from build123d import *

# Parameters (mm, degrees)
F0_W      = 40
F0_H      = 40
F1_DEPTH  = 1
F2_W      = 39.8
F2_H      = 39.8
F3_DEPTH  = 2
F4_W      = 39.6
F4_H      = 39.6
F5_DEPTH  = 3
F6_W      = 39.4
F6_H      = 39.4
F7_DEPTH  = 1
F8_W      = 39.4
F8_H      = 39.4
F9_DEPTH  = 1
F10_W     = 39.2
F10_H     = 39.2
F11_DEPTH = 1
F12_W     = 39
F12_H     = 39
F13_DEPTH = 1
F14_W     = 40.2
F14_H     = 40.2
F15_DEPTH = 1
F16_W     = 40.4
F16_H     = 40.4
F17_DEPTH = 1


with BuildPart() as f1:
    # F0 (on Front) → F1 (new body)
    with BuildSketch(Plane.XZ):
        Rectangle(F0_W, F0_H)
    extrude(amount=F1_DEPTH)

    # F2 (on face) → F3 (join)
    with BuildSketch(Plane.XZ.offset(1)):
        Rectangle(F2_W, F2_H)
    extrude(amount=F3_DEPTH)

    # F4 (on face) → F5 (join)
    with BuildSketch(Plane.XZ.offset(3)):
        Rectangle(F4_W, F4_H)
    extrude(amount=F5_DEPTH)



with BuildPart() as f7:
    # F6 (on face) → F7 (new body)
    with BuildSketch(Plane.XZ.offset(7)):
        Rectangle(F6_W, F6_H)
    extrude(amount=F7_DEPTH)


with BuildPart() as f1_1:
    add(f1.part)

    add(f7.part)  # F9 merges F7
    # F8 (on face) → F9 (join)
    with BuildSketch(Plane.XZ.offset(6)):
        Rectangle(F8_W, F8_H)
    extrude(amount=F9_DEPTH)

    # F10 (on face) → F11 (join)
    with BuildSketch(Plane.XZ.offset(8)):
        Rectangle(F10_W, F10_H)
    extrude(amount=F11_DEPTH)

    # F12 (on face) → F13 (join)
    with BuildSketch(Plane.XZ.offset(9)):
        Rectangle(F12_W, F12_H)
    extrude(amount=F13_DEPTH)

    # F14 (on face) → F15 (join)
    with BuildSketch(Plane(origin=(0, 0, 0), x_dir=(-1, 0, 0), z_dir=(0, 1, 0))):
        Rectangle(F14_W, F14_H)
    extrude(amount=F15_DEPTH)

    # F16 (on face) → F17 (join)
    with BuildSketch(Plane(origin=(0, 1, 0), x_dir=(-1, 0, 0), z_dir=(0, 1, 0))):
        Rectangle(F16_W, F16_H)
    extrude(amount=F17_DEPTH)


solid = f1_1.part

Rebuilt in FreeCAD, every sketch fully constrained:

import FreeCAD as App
import Part
import Sketcher


def add_polygon(sketch, points):
    """Adds a closed chain of lines whose ends are joined by coincident constraints."""
    first, n = sketch.GeometryCount, len(points)
    for a, b in zip(points, points[1:] + points[:1]):
        sketch.addGeometry(Part.LineSegment(App.Vector(*a, 0), App.Vector(*b, 0)), False)
    for i in range(n):
        sketch.addConstraint(Sketcher.Constraint("Coincident", first + i, 2, first + (i + 1) % n, 1))

doc = App.newDocument("Part")
body = doc.addObject("PartDesign::Body", "Body")

sketch1 = doc.addObject("Sketcher::SketchObject", "Sketch")
body.addObject(sketch1)
sketch1.AttachmentSupport = (doc.XZ_Plane, [""])
sketch1.MapMode = "FlatFace"
add_polygon(sketch1, [(-20, 20), (-20, -20), (20, -20), (20, 20)])
sketch1.addConstraint(Sketcher.Constraint("Vertical", 0))
sketch1.addConstraint(Sketcher.Constraint("Horizontal", 1))
sketch1.addConstraint(Sketcher.Constraint("Vertical", 2))
sketch1.addConstraint(Sketcher.Constraint("Horizontal", 3))
sketch1.addConstraint(Sketcher.Constraint("Symmetric", 0, 2, 2, 2, -1, 1))
sketch1.addConstraint(Sketcher.Constraint("Equal", 3, 0))
sketch1.addConstraint(Sketcher.Constraint("DistanceX", 1, 1, 1, 2, 40.0))
pad1 = doc.addObject("PartDesign::Pad", "Pad")
body.addObject(pad1)
pad1.Profile = sketch1
pad1.Length = 1

sketch2 = doc.addObject("Sketcher::SketchObject", "Sketch001")
body.addObject(sketch2)
sketch2.AttachmentSupport = (doc.XZ_Plane, [""])
sketch2.MapMode = "FlatFace"
sketch2.AttachmentOffset = App.Placement(App.Vector(0, 0, 1), App.Rotation())
add_polygon(sketch2, [(-20, 20), (-20, -20), (20, -20), (20, 20)])
sketch2.addConstraint(Sketcher.Constraint("Vertical", 0))
sketch2.addConstraint(Sketcher.Constraint("Horizontal", 1))
sketch2.addConstraint(Sketcher.Constraint("Vertical", 2))
sketch2.addConstraint(Sketcher.Constraint("Horizontal", 3))
sketch2.addConstraint(Sketcher.Constraint("Symmetric", 0, 2, 2, 2, -1, 1))
sketch2.addConstraint(Sketcher.Constraint("Equal", 3, 0))
sketch2.addConstraint(Sketcher.Constraint("DistanceX", 1, 1, 1, 2, 39.8))
pad2 = doc.addObject("PartDesign::Pad", "Pad001")
body.addObject(pad2)
pad2.Profile = sketch2
pad2.Length = 2

sketch3 = doc.addObject("Sketcher::SketchObject", "Sketch002")
body.addObject(sketch3)
sketch3.AttachmentSupport = (doc.XZ_Plane, [""])
sketch3.MapMode = "FlatFace"
sketch3.AttachmentOffset = App.Placement(App.Vector(0, 0, 3), App.Rotation())
add_polygon(sketch3, [(-20, 20), (-20, -20), (20, -20), (20, 20)])
sketch3.addConstraint(Sketcher.Constraint("Vertical", 0))
sketch3.addConstraint(Sketcher.Constraint("Horizontal", 1))
sketch3.addConstraint(Sketcher.Constraint("Vertical", 2))
sketch3.addConstraint(Sketcher.Constraint("Horizontal", 3))
sketch3.addConstraint(Sketcher.Constraint("Symmetric", 0, 2, 2, 2, -1, 1))
sketch3.addConstraint(Sketcher.Constraint("Equal", 3, 0))
sketch3.addConstraint(Sketcher.Constraint("DistanceX", 1, 1, 1, 2, 39.6))
pad3 = doc.addObject("PartDesign::Pad", "Pad002")
body.addObject(pad3)
pad3.Profile = sketch3
pad3.Length = 3
body2 = doc.addObject("PartDesign::Body", "Body001")

sketch4 = doc.addObject("Sketcher::SketchObject", "Sketch003")
body2.addObject(sketch4)
sketch4.AttachmentSupport = (doc.getObject("XZ_Plane001"), [""])
sketch4.MapMode = "FlatFace"
sketch4.AttachmentOffset = App.Placement(App.Vector(0, 0, 7), App.Rotation())
add_polygon(sketch4, [(-20, 20), (-20, -20), (20, -20), (20, 20)])
sketch4.addConstraint(Sketcher.Constraint("Vertical", 0))
sketch4.addConstraint(Sketcher.Constraint("Horizontal", 1))
sketch4.addConstraint(Sketcher.Constraint("Vertical", 2))
sketch4.addConstraint(Sketcher.Constraint("Horizontal", 3))
sketch4.addConstraint(Sketcher.Constraint("Symmetric", 0, 2, 2, 2, -1, 1))
sketch4.addConstraint(Sketcher.Constraint("Equal", 3, 0))
sketch4.addConstraint(Sketcher.Constraint("DistanceX", 1, 1, 1, 2, 39.4))
pad4 = doc.addObject("PartDesign::Pad", "Pad003")
body2.addObject(pad4)
pad4.Profile = sketch4
pad4.Length = 1
body.AllowCompound = True
doc.recompute()

boolean = doc.addObject("PartDesign::Boolean", "Boolean")
body.addObject(boolean)
boolean.Type = "Fuse"
boolean.addObjects([body2])

sketch5 = doc.addObject("Sketcher::SketchObject", "Sketch004")
body.addObject(sketch5)
sketch5.AttachmentSupport = (doc.XZ_Plane, [""])
sketch5.MapMode = "FlatFace"
sketch5.AttachmentOffset = App.Placement(App.Vector(0, 0, 6), App.Rotation())
add_polygon(sketch5, [(-20, 20), (-20, -20), (20, -20), (20, 20)])
sketch5.addConstraint(Sketcher.Constraint("Vertical", 0))
sketch5.addConstraint(Sketcher.Constraint("Horizontal", 1))
sketch5.addConstraint(Sketcher.Constraint("Vertical", 2))
sketch5.addConstraint(Sketcher.Constraint("Horizontal", 3))
sketch5.addConstraint(Sketcher.Constraint("Symmetric", 0, 2, 2, 2, -1, 1))
sketch5.addConstraint(Sketcher.Constraint("Equal", 3, 0))
sketch5.addConstraint(Sketcher.Constraint("DistanceX", 1, 1, 1, 2, 39.4))
pad5 = doc.addObject("PartDesign::Pad", "Pad004")
body.addObject(pad5)
pad5.Profile = sketch5
pad5.Length = 1

sketch6 = doc.addObject("Sketcher::SketchObject", "Sketch005")
body.addObject(sketch6)
sketch6.AttachmentSupport = (doc.XZ_Plane, [""])
sketch6.MapMode = "FlatFace"
sketch6.AttachmentOffset = App.Placement(App.Vector(0, 0, 8), App.Rotation())
add_polygon(sketch6, [(-20, 20), (-20, -20), (20, -20), (20, 20)])
sketch6.addConstraint(Sketcher.Constraint("Vertical", 0))
sketch6.addConstraint(Sketcher.Constraint("Horizontal", 1))
sketch6.addConstraint(Sketcher.Constraint("Vertical", 2))
sketch6.addConstraint(Sketcher.Constraint("Horizontal", 3))
sketch6.addConstraint(Sketcher.Constraint("Symmetric", 0, 2, 2, 2, -1, 1))
sketch6.addConstraint(Sketcher.Constraint("Equal", 3, 0))
sketch6.addConstraint(Sketcher.Constraint("DistanceX", 1, 1, 1, 2, 39.2))
pad6 = doc.addObject("PartDesign::Pad", "Pad005")
body.addObject(pad6)
pad6.Profile = sketch6
pad6.Length = 1

sketch7 = doc.addObject("Sketcher::SketchObject", "Sketch006")
body.addObject(sketch7)
sketch7.AttachmentSupport = (doc.XZ_Plane, [""])
sketch7.MapMode = "FlatFace"
sketch7.AttachmentOffset = App.Placement(App.Vector(0, 0, 9), App.Rotation())
add_polygon(sketch7, [(-20, 20), (-20, -20), (20, -20), (20, 20)])
sketch7.addConstraint(Sketcher.Constraint("Vertical", 0))
sketch7.addConstraint(Sketcher.Constraint("Horizontal", 1))
sketch7.addConstraint(Sketcher.Constraint("Vertical", 2))
sketch7.addConstraint(Sketcher.Constraint("Horizontal", 3))
sketch7.addConstraint(Sketcher.Constraint("Symmetric", 0, 2, 2, 2, -1, 1))
sketch7.addConstraint(Sketcher.Constraint("Equal", 3, 0))
sketch7.addConstraint(Sketcher.Constraint("DistanceX", 1, 1, 1, 2, 39.0))
pad7 = doc.addObject("PartDesign::Pad", "Pad006")
body.addObject(pad7)
pad7.Profile = sketch7
pad7.Length = 1

sketch8 = doc.addObject("Sketcher::SketchObject", "Sketch007")
body.addObject(sketch8)
sketch8.AttachmentSupport = (doc.XZ_Plane, [""])
sketch8.MapMode = "FlatFace"
add_polygon(sketch8, [(20, 20), (20, -20), (-20, -20), (-20, 20)])
sketch8.addConstraint(Sketcher.Constraint("Vertical", 0))
sketch8.addConstraint(Sketcher.Constraint("Horizontal", 1))
sketch8.addConstraint(Sketcher.Constraint("Vertical", 2))
sketch8.addConstraint(Sketcher.Constraint("Horizontal", 3))
sketch8.addConstraint(Sketcher.Constraint("Symmetric", 0, 2, 2, 2, -1, 1))
sketch8.addConstraint(Sketcher.Constraint("Equal", 3, 0))
sketch8.addConstraint(Sketcher.Constraint("DistanceX", 1, 2, 1, 1, 40.2))
pad8 = doc.addObject("PartDesign::Pad", "Pad007")
body.addObject(pad8)
pad8.Profile = sketch8
pad8.Length = 1
pad8.Reversed = True

sketch9 = doc.addObject("Sketcher::SketchObject", "Sketch008")
body.addObject(sketch9)
sketch9.AttachmentSupport = (doc.XZ_Plane, [""])
sketch9.MapMode = "FlatFace"
sketch9.AttachmentOffset = App.Placement(App.Vector(0, 0, -1), App.Rotation())
add_polygon(sketch9, [(20, 20), (20, -20), (-20, -20), (-20, 20)])
sketch9.addConstraint(Sketcher.Constraint("Vertical", 0))
sketch9.addConstraint(Sketcher.Constraint("Horizontal", 1))
sketch9.addConstraint(Sketcher.Constraint("Vertical", 2))
sketch9.addConstraint(Sketcher.Constraint("Horizontal", 3))
sketch9.addConstraint(Sketcher.Constraint("Symmetric", 0, 2, 2, 2, -1, 1))
sketch9.addConstraint(Sketcher.Constraint("Equal", 3, 0))
sketch9.addConstraint(Sketcher.Constraint("DistanceX", 1, 2, 1, 1, 40.4))
pad9 = doc.addObject("PartDesign::Pad", "Pad008")
body.addObject(pad9)
pad9.Profile = sketch9
pad9.Length = 1
pad9.Reversed = True

doc.recompute()
